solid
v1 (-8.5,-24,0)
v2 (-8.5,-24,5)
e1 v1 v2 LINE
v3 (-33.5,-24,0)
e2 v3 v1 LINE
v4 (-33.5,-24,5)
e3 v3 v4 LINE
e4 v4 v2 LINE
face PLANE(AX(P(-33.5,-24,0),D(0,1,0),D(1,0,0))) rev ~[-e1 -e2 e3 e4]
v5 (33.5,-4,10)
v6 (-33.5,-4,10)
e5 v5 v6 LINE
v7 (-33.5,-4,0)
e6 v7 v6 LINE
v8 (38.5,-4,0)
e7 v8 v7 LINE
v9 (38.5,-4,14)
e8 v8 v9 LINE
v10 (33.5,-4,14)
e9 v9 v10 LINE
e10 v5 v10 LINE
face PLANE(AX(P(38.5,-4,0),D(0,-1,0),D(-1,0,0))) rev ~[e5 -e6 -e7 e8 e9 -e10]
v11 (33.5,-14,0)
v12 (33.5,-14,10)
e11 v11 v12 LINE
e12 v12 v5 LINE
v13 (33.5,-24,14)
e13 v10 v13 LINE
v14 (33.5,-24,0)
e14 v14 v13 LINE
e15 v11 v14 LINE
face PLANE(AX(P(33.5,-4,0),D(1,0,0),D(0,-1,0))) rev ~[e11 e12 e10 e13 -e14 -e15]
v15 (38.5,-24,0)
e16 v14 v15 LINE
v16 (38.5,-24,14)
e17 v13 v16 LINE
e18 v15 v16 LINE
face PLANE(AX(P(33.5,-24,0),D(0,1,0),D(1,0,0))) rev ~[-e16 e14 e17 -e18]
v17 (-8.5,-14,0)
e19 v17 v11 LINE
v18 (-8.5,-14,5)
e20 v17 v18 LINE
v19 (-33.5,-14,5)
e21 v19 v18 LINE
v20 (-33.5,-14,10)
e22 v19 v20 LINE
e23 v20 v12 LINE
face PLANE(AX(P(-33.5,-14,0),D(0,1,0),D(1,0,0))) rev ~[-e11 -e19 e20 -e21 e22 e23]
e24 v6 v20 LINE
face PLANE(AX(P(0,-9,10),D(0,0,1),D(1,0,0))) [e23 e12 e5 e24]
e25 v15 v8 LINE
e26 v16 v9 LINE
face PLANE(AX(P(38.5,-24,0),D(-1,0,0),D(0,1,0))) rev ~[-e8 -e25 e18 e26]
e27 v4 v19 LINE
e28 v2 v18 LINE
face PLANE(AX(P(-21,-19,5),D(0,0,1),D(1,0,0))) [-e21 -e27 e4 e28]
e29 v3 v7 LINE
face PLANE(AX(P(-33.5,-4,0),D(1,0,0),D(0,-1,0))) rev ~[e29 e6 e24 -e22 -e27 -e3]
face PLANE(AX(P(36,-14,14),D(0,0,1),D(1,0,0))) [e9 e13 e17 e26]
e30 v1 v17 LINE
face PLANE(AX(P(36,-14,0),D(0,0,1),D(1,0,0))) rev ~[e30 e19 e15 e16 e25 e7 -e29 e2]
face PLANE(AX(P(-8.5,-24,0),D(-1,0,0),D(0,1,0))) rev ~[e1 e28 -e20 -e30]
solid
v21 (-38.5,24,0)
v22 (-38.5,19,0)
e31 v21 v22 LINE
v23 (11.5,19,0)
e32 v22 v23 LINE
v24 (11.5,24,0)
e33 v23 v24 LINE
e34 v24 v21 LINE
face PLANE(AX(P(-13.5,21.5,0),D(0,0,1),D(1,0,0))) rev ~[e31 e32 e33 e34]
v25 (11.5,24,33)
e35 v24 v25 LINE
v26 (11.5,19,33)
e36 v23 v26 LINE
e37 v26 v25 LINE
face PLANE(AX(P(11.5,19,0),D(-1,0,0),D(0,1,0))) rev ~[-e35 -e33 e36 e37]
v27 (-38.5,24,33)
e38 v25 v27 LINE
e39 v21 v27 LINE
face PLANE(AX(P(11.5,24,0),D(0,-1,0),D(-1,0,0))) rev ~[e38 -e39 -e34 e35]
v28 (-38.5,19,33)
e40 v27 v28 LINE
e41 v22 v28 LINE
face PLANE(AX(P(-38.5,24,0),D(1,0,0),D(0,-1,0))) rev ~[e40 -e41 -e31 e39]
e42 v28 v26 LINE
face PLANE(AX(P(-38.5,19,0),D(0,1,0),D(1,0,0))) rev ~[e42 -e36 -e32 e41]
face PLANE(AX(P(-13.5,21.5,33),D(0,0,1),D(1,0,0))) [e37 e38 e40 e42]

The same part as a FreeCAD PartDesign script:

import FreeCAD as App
import Part
import Sketcher
from FreeCAD import Vector


def add_polygon(sketch, points):
    """Adds a closed chain of lines whose ends are joined by coincident constraints."""
    first, n = sketch.GeometryCount, len(points)
    for a, b in zip(points, points[1:] + points[:1]):
        sketch.addGeometry(Part.LineSegment(App.Vector(*a, 0), App.Vector(*b, 0)), False)
    for i in range(n):
        sketch.addConstraint(Sketcher.Constraint("Coincident", first + i, 2, first + (i + 1) % n, 1))

doc = App.newDocument("Part")
body = doc.addObject("PartDesign::Body", "Body")

sketch1 = body.newObject("Sketcher::SketchObject", "Sketch")
sketch1.AttachmentSupport = (doc.getObject("XY_Plane"), [""])
sketch1.MapMode = "FlatFace"
add_polygon(sketch1, [(-33.5, -14), (-33.5, -24), (-8.5, -24), (-8.5, -14)])
sketch1.addConstraint([
    Sketcher.Constraint("Vertical", 0),
    Sketcher.Constraint("Horizontal", 1),
    Sketcher.Constraint("Vertical", 2),
    Sketcher.Constraint("Horizontal", 3),
    Sketcher.Constraint("DistanceX", 1, 1, 1, 2, 25.0),
    Sketcher.Constraint("DistanceY", 0, 2, 0, 1, 10.0),
    Sketcher.Constraint("DistanceY", 0, 2, -1, 1, 24.0),
    Sketcher.Constraint("DistanceX", 0, 2, -1, 1, 33.5),
])
pad1 = body.newObject("PartDesign::Pad", "Pad")
pad1.Profile = sketch1
pad1.Length = 5

sketch2 = body.newObject("Sketcher::SketchObject", "Sketch001")
sketch2.AttachmentSupport = (doc.getObject("XY_Plane"), [""])
sketch2.MapMode = "FlatFace"
add_polygon(sketch2, [(33.5, -14), (33.5, -4), (-33.5, -4), (-33.5, -14)])
sketch2.addConstraint([
    Sketcher.Constraint("Vertical", 0),
    Sketcher.Constraint("Horizontal", 1),
    Sketcher.Constraint("Vertical", 2),
    Sketcher.Constraint("Horizontal", 3),
    Sketcher.Constraint("DistanceX", 1, 2, 1, 1, 67.0),
    Sketcher.Constraint("DistanceY", 0, 1, 0, 2, 10.0),
    Sketcher.Constraint("DistanceY", 0, 2, -1, 1, 4.0),
    Sketcher.Constraint("DistanceX", -1, 1, 0, 2, 33.5),
])
pad2 = body.newObject("PartDesign::Pad", "Pad001")
pad2.Profile = sketch2
pad2.Length = 10

sketch3 = body.newObject("Sketcher::SketchObject", "Sketch002")
sketch3.AttachmentSupport = (doc.getObject("XY_Plane"), [""])
sketch3.MapMode = "FlatFace"
add_polygon(sketch3, [(38.5, -4), (33.5, -4), (33.5, -24), (38.5, -24)])
sketch3.addConstraint([
    Sketcher.Constraint("Horizontal", 0),
    Sketcher.Constraint("Vertical", 1),
    Sketcher.Constraint("Horizontal", 2),
    Sketcher.Constraint("Vertical", 3),
    Sketcher.Constraint("DistanceX", 0, 2, 0, 1, 5.0),
    Sketcher.Constraint("DistanceY", 1, 2, 1, 1, 20.0),
    Sketcher.Constraint("DistanceY", 0, 2, -1, 1, 4.0),
    Sketcher.Constraint("DistanceX", -1, 1, 0, 2, 33.5),
])
pad3 = body.newObject("PartDesign::Pad", "Pad002")
pad3.Profile = sketch3
pad3.Length = 14
body2 = doc.addObject("PartDesign::Body", "Body001")

sketch4 = body2.newObject("Sketcher::SketchObject", "Sketch003")
sketch4.AttachmentSupport = (doc.getObject("XY_Plane001"), [""])
sketch4.MapMode = "FlatFace"
add_polygon(sketch4, [(11.5, 24), (-38.5, 24), (-38.5, 19), (11.5, 19)])
sketch4.addConstraint([
    Sketcher.Constraint("Horizontal", 0),
    Sketcher.Constraint("Vertical", 1),
    Sketcher.Constraint("Horizontal", 2),
    Sketcher.Constraint("Vertical", 3),
    Sketcher.Constraint("DistanceX", 0, 2, 0, 1, 50.0),
    Sketcher.Constraint("DistanceY", 1, 2, 1, 1, 5.0),
    Sketcher.Constraint("DistanceY", -1, 1, 0, 2, 24.0),
    Sketcher.Constraint("DistanceX", 0, 2, -1, 1, 38.5),
])
pad4 = body2.newObject("PartDesign::Pad", "Pad003")
pad4.Profile = sketch4
pad4.Length = 33

doc.recompute()
